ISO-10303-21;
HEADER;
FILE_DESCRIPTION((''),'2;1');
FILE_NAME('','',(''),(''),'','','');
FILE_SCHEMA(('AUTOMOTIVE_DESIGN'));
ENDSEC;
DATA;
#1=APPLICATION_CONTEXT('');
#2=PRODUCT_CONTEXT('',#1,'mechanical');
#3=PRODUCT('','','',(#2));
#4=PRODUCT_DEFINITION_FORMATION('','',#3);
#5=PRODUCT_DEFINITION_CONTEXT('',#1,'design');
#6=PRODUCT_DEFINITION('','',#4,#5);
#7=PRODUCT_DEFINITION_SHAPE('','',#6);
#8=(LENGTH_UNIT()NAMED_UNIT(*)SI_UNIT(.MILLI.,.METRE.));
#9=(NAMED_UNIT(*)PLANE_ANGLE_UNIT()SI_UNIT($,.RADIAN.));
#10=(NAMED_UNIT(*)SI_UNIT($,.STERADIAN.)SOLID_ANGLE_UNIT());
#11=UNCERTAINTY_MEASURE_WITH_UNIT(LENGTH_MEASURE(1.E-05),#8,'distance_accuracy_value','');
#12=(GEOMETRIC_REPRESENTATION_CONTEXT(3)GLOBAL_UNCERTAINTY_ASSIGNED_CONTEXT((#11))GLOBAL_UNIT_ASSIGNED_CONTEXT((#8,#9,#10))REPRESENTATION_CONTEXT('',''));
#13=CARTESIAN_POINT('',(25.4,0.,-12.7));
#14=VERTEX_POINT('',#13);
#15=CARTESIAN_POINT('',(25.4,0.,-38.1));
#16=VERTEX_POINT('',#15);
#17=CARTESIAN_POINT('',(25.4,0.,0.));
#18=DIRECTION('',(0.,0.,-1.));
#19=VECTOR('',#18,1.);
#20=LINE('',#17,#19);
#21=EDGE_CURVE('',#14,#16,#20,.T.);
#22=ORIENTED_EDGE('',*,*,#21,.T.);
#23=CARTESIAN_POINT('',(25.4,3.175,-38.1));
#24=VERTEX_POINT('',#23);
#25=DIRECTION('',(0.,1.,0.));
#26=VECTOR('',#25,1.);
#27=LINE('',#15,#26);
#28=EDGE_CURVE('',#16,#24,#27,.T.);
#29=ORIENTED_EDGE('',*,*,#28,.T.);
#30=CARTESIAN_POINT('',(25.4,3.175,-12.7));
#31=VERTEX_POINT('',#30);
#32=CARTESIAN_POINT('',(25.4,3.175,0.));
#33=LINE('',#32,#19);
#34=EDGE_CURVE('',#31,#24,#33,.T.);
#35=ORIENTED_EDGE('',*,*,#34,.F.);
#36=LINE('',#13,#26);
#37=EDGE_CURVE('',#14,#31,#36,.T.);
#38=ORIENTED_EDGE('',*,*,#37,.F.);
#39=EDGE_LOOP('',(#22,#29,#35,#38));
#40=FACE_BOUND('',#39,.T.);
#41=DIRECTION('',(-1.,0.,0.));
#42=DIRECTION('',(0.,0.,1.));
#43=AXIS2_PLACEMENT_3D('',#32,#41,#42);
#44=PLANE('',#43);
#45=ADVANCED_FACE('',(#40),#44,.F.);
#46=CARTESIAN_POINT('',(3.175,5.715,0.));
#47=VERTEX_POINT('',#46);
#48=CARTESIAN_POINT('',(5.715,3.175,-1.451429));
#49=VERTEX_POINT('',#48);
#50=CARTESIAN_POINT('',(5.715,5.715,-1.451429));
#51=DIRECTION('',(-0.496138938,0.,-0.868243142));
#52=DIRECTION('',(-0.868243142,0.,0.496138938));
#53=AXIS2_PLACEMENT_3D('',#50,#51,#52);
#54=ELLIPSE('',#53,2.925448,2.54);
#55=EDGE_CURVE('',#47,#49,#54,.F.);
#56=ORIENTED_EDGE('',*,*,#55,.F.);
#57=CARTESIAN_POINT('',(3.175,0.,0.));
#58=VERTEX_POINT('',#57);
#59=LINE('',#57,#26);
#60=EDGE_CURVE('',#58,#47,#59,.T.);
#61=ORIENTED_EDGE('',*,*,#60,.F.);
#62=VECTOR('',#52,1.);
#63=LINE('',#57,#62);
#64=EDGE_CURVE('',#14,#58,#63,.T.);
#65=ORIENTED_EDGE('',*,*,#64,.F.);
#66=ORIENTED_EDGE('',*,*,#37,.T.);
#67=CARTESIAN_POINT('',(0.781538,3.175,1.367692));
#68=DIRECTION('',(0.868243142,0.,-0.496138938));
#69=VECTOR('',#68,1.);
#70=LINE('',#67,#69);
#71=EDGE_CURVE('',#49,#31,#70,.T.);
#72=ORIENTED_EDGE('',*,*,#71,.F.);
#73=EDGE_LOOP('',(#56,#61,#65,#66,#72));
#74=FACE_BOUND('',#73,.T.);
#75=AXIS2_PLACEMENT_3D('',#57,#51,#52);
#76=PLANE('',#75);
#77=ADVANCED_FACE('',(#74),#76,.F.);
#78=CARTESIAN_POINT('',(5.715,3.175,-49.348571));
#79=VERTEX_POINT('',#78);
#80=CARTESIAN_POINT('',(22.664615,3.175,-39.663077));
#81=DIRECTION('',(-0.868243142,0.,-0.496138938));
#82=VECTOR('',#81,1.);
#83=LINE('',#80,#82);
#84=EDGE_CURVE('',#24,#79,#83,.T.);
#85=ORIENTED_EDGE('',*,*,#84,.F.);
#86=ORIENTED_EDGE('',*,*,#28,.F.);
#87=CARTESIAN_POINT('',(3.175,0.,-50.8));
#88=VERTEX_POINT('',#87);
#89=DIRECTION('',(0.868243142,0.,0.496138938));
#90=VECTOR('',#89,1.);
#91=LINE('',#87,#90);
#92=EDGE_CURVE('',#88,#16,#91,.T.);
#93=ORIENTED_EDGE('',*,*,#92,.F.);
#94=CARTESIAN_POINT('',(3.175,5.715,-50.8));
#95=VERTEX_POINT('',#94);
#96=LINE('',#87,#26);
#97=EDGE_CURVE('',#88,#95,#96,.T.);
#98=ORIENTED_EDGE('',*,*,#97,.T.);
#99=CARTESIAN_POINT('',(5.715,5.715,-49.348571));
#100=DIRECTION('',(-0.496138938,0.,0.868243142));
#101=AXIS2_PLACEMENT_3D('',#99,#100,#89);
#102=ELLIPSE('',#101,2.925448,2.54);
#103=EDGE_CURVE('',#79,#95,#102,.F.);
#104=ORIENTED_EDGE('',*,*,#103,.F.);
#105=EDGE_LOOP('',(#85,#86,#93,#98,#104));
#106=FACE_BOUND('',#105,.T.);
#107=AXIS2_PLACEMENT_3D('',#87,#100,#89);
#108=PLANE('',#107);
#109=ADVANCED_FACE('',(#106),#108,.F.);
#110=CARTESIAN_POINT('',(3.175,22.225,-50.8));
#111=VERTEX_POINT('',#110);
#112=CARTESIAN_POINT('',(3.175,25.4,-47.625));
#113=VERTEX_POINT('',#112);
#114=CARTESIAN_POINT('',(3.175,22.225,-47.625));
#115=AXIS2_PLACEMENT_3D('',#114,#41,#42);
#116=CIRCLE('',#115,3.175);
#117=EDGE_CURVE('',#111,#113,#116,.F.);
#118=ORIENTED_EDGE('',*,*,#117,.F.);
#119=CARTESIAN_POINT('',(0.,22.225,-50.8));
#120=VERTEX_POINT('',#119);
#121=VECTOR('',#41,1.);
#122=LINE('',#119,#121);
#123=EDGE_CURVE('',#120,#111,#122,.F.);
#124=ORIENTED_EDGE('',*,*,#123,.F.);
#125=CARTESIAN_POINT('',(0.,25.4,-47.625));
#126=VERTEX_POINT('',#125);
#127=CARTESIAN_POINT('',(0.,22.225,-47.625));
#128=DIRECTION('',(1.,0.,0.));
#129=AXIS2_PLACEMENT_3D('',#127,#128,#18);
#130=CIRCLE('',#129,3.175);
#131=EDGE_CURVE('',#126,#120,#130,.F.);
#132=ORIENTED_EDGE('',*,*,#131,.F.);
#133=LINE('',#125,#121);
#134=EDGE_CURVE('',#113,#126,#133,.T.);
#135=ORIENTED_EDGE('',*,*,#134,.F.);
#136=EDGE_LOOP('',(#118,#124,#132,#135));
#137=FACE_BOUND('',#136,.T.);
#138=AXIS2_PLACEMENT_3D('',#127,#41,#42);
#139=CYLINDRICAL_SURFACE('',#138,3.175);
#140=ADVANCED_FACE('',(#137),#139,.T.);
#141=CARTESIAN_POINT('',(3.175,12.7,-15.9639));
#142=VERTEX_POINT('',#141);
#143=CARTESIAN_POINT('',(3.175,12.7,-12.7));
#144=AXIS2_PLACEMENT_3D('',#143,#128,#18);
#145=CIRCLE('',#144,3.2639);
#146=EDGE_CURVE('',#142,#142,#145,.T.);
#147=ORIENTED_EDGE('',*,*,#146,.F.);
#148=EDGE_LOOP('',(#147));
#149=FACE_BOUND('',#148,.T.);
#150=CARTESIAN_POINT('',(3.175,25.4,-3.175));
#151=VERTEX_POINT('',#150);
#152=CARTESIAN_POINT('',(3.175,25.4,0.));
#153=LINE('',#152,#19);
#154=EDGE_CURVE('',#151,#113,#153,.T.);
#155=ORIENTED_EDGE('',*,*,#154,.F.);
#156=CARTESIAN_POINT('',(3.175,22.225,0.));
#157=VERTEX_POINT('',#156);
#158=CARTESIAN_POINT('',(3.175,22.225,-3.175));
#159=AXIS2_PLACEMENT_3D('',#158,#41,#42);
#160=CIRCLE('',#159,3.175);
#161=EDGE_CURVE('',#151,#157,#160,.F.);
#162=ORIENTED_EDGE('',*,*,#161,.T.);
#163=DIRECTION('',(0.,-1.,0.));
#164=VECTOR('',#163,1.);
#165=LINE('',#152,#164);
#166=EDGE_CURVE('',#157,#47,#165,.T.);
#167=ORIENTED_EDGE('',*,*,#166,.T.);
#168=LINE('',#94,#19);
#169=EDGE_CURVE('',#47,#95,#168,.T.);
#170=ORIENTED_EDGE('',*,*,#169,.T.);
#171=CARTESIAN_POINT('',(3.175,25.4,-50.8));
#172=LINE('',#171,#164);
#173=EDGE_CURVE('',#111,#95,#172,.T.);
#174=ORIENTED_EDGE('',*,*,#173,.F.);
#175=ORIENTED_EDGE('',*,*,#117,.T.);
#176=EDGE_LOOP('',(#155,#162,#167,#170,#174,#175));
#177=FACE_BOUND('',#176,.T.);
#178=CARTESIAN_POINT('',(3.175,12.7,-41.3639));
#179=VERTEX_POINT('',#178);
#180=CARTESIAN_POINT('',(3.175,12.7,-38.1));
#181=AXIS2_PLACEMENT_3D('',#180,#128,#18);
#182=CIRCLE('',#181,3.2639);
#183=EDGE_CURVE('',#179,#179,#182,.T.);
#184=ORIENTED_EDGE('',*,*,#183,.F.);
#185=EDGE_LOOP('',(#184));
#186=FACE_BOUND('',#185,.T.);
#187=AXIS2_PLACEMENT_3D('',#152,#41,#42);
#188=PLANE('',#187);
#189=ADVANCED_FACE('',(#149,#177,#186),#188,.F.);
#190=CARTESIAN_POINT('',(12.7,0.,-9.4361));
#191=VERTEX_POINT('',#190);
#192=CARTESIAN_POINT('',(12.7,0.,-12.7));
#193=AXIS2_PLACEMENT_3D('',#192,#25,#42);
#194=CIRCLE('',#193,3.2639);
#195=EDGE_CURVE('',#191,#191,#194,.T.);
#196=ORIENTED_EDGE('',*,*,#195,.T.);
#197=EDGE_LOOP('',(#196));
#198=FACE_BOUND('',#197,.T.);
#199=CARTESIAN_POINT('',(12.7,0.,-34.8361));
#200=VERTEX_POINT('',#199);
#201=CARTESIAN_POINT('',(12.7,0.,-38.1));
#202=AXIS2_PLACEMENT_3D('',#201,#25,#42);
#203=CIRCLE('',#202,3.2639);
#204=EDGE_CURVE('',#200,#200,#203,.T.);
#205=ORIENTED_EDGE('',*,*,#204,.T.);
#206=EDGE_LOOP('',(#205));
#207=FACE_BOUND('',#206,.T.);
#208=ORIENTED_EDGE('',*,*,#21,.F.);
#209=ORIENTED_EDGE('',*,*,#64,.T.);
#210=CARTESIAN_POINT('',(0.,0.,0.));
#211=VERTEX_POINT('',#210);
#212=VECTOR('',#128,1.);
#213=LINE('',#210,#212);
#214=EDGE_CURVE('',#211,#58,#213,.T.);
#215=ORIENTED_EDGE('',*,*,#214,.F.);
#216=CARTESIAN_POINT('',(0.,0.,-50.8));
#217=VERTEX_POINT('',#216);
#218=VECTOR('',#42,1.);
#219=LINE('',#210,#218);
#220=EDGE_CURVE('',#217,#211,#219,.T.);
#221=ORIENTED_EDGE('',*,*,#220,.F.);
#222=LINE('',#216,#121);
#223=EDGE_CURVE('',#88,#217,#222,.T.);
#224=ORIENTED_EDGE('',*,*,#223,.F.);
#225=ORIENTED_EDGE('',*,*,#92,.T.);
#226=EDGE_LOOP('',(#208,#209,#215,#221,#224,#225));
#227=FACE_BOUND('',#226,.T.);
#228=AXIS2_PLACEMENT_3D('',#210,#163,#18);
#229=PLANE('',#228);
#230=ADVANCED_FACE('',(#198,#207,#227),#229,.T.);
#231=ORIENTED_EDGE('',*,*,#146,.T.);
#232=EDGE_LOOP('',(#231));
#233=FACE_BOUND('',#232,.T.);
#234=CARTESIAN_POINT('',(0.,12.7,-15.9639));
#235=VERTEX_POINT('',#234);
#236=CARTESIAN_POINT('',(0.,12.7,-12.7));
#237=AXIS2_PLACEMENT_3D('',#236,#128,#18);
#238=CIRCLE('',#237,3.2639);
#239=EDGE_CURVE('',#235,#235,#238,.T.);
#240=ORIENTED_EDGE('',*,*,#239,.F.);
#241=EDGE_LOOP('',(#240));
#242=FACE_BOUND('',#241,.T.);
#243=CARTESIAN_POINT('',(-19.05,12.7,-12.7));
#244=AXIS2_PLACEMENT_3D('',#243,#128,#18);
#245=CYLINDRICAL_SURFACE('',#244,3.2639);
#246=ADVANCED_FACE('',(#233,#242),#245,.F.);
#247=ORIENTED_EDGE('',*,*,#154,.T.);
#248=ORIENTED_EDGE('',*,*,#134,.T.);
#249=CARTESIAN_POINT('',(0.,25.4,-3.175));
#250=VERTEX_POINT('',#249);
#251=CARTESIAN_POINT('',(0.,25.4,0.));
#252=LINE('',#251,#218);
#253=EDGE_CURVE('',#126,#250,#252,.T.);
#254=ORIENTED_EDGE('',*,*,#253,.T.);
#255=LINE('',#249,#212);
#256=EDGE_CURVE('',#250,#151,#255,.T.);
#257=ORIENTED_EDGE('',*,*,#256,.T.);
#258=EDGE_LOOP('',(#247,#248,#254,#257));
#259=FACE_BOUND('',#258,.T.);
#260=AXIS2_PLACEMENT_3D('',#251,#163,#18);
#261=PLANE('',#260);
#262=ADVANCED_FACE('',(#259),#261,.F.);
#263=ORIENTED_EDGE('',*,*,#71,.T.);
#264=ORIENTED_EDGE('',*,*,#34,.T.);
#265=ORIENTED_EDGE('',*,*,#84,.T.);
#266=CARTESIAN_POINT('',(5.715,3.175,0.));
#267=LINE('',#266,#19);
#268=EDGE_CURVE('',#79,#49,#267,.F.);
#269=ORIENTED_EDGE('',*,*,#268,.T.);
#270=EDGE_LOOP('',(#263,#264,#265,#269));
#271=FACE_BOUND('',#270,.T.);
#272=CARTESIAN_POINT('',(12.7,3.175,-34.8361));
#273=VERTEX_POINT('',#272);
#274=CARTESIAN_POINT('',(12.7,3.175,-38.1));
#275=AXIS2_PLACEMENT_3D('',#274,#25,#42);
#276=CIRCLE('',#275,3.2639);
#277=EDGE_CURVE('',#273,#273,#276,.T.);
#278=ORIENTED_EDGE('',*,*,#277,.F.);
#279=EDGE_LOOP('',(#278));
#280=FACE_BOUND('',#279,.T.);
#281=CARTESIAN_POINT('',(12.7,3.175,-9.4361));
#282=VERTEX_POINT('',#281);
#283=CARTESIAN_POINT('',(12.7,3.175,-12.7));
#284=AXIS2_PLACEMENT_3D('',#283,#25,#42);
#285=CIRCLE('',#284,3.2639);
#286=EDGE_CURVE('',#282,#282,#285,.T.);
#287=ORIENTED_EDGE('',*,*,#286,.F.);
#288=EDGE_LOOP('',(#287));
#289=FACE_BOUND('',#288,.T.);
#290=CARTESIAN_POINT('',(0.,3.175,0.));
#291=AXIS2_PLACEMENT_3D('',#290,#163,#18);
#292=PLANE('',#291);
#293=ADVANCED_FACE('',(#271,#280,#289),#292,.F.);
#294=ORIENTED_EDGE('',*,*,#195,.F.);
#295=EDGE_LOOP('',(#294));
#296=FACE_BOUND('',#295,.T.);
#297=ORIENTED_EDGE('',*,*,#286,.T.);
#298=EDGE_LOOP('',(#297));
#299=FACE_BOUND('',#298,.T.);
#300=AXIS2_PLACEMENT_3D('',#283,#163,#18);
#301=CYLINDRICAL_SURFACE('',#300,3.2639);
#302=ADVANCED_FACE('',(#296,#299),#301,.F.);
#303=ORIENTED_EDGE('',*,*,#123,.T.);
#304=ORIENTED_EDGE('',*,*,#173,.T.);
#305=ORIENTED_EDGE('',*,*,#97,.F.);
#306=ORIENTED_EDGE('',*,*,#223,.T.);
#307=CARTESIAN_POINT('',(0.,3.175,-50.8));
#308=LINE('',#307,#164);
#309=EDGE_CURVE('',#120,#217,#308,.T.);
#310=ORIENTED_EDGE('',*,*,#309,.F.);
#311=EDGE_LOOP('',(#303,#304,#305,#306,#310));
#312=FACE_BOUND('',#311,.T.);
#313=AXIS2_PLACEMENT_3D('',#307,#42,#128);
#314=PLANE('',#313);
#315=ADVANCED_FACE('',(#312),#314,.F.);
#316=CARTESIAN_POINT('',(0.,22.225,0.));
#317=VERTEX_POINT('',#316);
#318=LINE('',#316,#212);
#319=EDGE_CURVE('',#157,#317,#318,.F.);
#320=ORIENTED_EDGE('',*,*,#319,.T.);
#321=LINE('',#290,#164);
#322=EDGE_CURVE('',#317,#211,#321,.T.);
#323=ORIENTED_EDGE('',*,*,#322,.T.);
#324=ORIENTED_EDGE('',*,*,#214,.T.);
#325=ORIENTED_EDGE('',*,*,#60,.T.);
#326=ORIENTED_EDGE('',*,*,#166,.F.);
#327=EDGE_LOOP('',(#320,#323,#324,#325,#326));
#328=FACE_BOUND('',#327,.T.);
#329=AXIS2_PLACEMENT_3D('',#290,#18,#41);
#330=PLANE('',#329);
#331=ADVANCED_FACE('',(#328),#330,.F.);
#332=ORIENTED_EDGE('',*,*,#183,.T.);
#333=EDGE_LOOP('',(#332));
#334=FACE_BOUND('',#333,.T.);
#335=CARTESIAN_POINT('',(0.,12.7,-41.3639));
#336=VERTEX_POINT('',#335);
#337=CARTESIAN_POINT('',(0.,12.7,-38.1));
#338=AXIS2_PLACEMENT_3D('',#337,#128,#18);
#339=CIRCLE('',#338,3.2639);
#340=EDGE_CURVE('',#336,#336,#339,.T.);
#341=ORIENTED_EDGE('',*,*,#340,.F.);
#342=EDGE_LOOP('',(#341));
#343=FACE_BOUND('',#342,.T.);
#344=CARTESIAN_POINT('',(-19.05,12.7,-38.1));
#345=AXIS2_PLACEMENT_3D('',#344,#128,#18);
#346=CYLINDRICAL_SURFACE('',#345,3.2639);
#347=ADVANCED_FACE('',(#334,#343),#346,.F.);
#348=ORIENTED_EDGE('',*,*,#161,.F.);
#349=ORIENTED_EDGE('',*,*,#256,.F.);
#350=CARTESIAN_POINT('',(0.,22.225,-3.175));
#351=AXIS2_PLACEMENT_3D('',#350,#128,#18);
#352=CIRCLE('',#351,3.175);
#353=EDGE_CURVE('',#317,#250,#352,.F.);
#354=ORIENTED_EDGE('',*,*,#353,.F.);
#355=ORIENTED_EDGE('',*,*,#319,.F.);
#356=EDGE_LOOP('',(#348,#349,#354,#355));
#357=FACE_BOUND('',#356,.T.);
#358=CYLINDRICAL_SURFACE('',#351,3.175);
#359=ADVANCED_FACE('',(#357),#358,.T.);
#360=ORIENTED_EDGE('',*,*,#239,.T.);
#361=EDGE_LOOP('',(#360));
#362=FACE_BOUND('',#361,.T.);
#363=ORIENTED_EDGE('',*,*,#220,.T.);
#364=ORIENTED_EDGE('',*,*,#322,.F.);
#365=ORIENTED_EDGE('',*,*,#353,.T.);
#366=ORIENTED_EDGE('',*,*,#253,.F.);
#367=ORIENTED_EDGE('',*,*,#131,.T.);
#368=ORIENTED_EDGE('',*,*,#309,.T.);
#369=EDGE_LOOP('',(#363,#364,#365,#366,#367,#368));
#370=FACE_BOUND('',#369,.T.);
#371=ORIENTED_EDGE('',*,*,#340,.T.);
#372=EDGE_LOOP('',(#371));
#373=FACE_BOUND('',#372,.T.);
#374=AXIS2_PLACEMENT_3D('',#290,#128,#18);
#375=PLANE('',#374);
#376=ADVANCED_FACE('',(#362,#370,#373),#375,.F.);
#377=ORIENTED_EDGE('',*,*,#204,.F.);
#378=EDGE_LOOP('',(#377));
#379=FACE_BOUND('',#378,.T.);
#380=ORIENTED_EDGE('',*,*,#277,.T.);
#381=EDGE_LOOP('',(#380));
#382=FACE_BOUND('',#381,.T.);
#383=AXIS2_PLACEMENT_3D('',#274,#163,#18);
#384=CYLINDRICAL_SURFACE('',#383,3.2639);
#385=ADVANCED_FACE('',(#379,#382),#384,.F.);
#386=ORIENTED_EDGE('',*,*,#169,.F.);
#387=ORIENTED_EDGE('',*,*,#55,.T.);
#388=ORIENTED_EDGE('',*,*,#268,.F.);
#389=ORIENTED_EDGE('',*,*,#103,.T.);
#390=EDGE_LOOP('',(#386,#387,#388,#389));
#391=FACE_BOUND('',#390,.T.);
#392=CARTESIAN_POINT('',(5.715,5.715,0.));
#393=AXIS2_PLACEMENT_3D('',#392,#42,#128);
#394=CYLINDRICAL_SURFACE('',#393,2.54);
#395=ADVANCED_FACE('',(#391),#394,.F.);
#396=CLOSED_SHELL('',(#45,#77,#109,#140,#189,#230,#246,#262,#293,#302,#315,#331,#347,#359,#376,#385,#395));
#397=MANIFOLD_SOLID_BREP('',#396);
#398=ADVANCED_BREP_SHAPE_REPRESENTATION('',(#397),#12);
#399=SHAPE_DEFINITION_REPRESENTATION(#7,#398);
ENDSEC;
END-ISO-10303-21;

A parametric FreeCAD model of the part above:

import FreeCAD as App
import Part
import Sketcher
from FreeCAD import Vector
Q = App.Units.Quantity


def edges_at(feature, points):
    """Names of the edges that pass closest to the given points."""
    edges = feature.Shape.Edges
    near = lambda p: min(range(len(edges)), key=lambda i: edges[i].distToShape(Part.Vertex(*p))[0])
    return sorted({f"Edge{near(p) + 1}" for p in points})

doc = App.newDocument("Part")
body = doc.addObject("PartDesign::Body", "Body")

sketch1 = body.newObject("Sketcher::SketchObject", "Sketch")
sketch1.AttachmentSupport = (doc.getObject("XZ_Plane"), [""])
sketch1.MapMode = "FlatFace"
sketch1.addGeometry(Part.LineSegment(Vector(0, -50.8, 0), Vector(0, 0, 0)), False)
sketch1.addGeometry(Part.LineSegment(Vector(0, 0, 0), Vector(25.4, 0, 0)), False)
sketch1.addGeometry(Part.LineSegment(Vector(25.4, 0, 0), Vector(25.4, -50.8, 0)), False)
sketch1.addGeometry(Part.LineSegment(Vector(25.4, -50.8, 0), Vector(0, -50.8, 0)), False)
sketch1.addGeometry(Part.Circle(Vector(12.7, -12.7, 0), Vector(0, 0, 1), 3.2639), False)
sketch1.addGeometry(Part.Circle(Vector(12.7, -38.1, 0), Vector(0, 0, 1), 3.2639), False)
sketch1.addConstraint(Sketcher.Constraint("Coincident", 0, 2, 1, 1))
sketch1.addConstraint(Sketcher.Constraint("Coincident", 1, 2, 2, 1))
sketch1.addConstraint(Sketcher.Constraint("Coincident", 2, 2, 3, 1))
sketch1.addConstraint(Sketcher.Constraint("Coincident", 3, 2, 0, 1))
sketch1.addConstraint(Sketcher.Constraint("Vertical", 0))
sketch1.addConstraint(Sketcher.Constraint("Horizontal", 1))
sketch1.addConstraint(Sketcher.Constraint("Vertical", 2))
sketch1.addConstraint(Sketcher.Constraint("Horizontal", 3))
sketch1.addConstraint(Sketcher.Constraint("Coincident", 0, 2, -1, 1))
sketch1.addConstraint(Sketcher.Constraint("Equal", 4, 5))
sketch1.addConstraint(Sketcher.Constraint("Vertical", 4, 3, 5, 3))
sketch1.addConstraint(Sketcher.Constraint("DistanceX", 1, 1, 1, 2, Q("1 in")))
sketch1.addConstraint(Sketcher.Constraint("DistanceY", 0, 1, 0, 2, Q("2 in")))
sketch1.addConstraint(Sketcher.Constraint("Diameter", 4, Q("0.257 in")))
sketch1.addConstraint(Sketcher.Constraint("DistanceY", 5, 3, 4, 3, Q("1 in")))
sketch1.addConstraint(Sketcher.Constraint("DistanceX", -1, 1, 4, 3, Q("0.5 in")))
sketch1.addConstraint(Sketcher.Constraint("DistanceY", 4, 3, -1, 1, Q("0.5 in")))
pad1 = body.newObject("PartDesign::Pad", "Pad")
pad1.Profile = sketch1
pad1.Length = Q("0.125 in")
pad1.Reversed = True

sketch2 = body.newObject("Sketcher::SketchObject", "Sketch001")
sketch2.AttachmentSupport = (doc.getObject("XZ_Plane"), [""])
sketch2.MapMode = "FlatFace"
sketch2.AttachmentOffset = App.Placement(Vector(0, 0, -0.125 * 25.4), App.Rotation())
sketch2.addGeometry(Part.LineSegment(Vector(0, -50.8, 0), Vector(0, 0, 0)), False)
sketch2.addGeometry(Part.LineSegment(Vector(0, 0, 0), Vector(3.175, 0, 0)), False)
sketch2.addGeometry(Part.LineSegment(Vector(3.175, 0, 0), Vector(3.175, -50.8, 0)), False)
sketch2.addGeometry(Part.LineSegment(Vector(3.175, -50.8, 0), Vector(0, -50.8, 0)), False)
sketch2.addConstraint(Sketcher.Constraint("Coincident", 0, 2, 1, 1))
sketch2.addConstraint(Sketcher.Constraint("Coincident", 1, 2, 2, 1))
sketch2.addConstraint(Sketcher.Constraint("Coincident", 2, 2, 3, 1))
sketch2.addConstraint(Sketcher.Constraint("Coincident", 3, 2, 0, 1))
sketch2.addConstraint(Sketcher.Constraint("Vertical", 0))
sketch2.addConstraint(Sketcher.Constraint("Horizontal", 1))
sketch2.addConstraint(Sketcher.Constraint("Vertical", 2))
sketch2.addConstraint(Sketcher.Constraint("Horizontal", 3))
sketch2.addConstraint(Sketcher.Constraint("Coincident", 0, 2, -1, 1))
sketch2.addConstraint(Sketcher.Constraint("DistanceY", 0, 1, 0, 2, Q("2 in")))
sketch2.addConstraint(Sketcher.Constraint("DistanceX", 1, 1, 1, 2, Q("0.125 in")))
pad2 = body.newObject("PartDesign::Pad", "Pad001")
pad2.Profile = sketch2
pad2.Length = Q("0.875 in")
pad2.Reversed = True

sketch3 = body.newObject("Sketcher::SketchObject", "Sketch002")
sketch3.AttachmentSupport = (doc.getObject("YZ_Plane"), [""])
sketch3.MapMode = "FlatFace"
sketch3.AttachmentOffset = App.Placement(Vector(0, 0, 0.125 * 25.4), App.Rotation())
sketch3.addGeometry(Part.Circle(Vector(12.7, -12.7, 0), Vector(0, 0, 1), 3.2639), False)
sketch3.addGeometry(Part.Circle(Vector(12.7, -38.1, 0), Vector(0, 0, 1), 3.2639), False)
sketch3.addConstraint(Sketcher.Constraint("Equal", 0, 1))
sketch3.addConstraint(Sketcher.Constraint("Vertical", 0, 3, 1, 3))
sketch3.addConstraint(Sketcher.Constraint("Diameter", 0, Q("0.257 in")))
sketch3.addConstraint(Sketcher.Constraint("DistanceY", 1, 3, 0, 3, Q("1 in")))
sketch3.addConstraint(Sketcher.Constraint("DistanceX", -1, 1, 0, 3, Q("0.5 in")))
sketch3.addConstraint(Sketcher.Constraint("DistanceY", 0, 3, -1, 1, Q("0.5 in")))
pocket1 = body.newObject("PartDesign::Pocket", "Pocket")
pocket1.Profile = sketch3
pocket1.Length = Q("0.875 in")
doc.recompute()

fillet = body.newObject("PartDesign::Fillet", "Fillet")
fillet.Base = (pocket1, edges_at(pocket1, [(3.175, 3.175, -25.4)]))
fillet.Radius = Q("0.1 in")

sketch4 = body.newObject("Sketcher::SketchObject", "Sketch003")
sketch4.AttachmentSupport = (doc.getObject("XZ_Plane"), [""])
sketch4.MapMode = "FlatFace"
sketch4.AttachmentOffset = App.Placement(Vector(0, 0, -0.125 * 25.4), App.Rotation())
sketch4.addGeometry(Part.LineSegment(Vector(25.4, 0, 0), Vector(25.4, -12.7, 0)), False)
sketch4.addGeometry(Part.LineSegment(Vector(25.4, -12.7, 0), Vector(3.175, 0, 0)), False)
sketch4.addGeometry(Part.LineSegment(Vector(3.175, 0, 0), Vector(25.4, 0, 0)), False)
sketch4.addGeometry(Part.LineSegment(Vector(25.4, -38.1, 0), Vector(25.4, -50.8, 0)), False)
sketch4.addGeometry(Part.LineSegment(Vector(25.4, -50.8, 0), Vector(3.175, -50.8, 0)), False)
sketch4.addGeometry(Part.LineSegment(Vector(3.175, -50.8, 0), Vector(25.4, -38.1, 0)), False)
sketch4.addConstraint(Sketcher.Constraint("Coincident", 0, 2, 1, 1))
sketch4.addConstraint(Sketcher.Constraint("Coincident", 1, 2, 2, 1))
sketch4.addConstraint(Sketcher.Constraint("Coincident", 2, 2, 0, 1))
sketch4.addConstraint(Sketcher.Constraint("Coincident", 3, 2, 4, 1))
sketch4.addConstraint(Sketcher.Constraint("Coincident", 4, 2, 5, 1))
sketch4.addConstraint(Sketcher.Constraint("Coincident", 5, 2, 3, 1))
sketch4.addConstraint(Sketcher.Constraint("Vertical", 0))
sketch4.addConstraint(Sketcher.Constraint("Horizontal", 2))
sketch4.addConstraint(Sketcher.Constraint("Vertical", 3))
sketch4.addConstraint(Sketcher.Constraint("Horizontal", 4))
sketch4.addConstraint(Sketcher.Constraint("PointOnObject", 1, 2, -1))
sketch4.addConstraint(Sketcher.Constraint("Vertical", 2, 2, 3, 2))
sketch4.addConstraint(Sketcher.Constraint("Vertical", 1, 2, 4, 2))
sketch4.addConstraint(Sketcher.Constraint("Equal", 0, 3))
sketch4.addConstraint(Sketcher.Constraint("DistanceY", 0, 2, 0, 1, Q("0.5 in")))
sketch4.addConstraint(Sketcher.Constraint("DistanceX", -1, 1, 0, 2, Q("1 in")))
sketch4.addConstraint(Sketcher.Constraint("DistanceY", 3, 2, -1, 1, Q("2 in")))
sketch4.addConstraint(Sketcher.Constraint("DistanceX", 2, 1, 2, 2, Q("0.875 in")))
pocket2 = body.newObject("PartDesign::Pocket", "Pocket001")
pocket2.Profile = sketch4
pocket2.Type = "ThroughAll"
pocket2.Midplane = True
doc.recompute()

fillet2 = body.newObject("PartDesign::Fillet", "Fillet001")
fillet2.Base = (pocket2, edges_at(pocket2, [(1.587, 25.4, 0)]))
fillet2.Radius = Q("0.125 in")
doc.recompute()

fillet3 = body.newObject("PartDesign::Fillet", "Fillet002")
fillet3.Base = (fillet2, edges_at(fillet2, [(1.587, 25.4, -50.8)]))
fillet3.Radius = Q("0.125 in")

doc.recompute()
